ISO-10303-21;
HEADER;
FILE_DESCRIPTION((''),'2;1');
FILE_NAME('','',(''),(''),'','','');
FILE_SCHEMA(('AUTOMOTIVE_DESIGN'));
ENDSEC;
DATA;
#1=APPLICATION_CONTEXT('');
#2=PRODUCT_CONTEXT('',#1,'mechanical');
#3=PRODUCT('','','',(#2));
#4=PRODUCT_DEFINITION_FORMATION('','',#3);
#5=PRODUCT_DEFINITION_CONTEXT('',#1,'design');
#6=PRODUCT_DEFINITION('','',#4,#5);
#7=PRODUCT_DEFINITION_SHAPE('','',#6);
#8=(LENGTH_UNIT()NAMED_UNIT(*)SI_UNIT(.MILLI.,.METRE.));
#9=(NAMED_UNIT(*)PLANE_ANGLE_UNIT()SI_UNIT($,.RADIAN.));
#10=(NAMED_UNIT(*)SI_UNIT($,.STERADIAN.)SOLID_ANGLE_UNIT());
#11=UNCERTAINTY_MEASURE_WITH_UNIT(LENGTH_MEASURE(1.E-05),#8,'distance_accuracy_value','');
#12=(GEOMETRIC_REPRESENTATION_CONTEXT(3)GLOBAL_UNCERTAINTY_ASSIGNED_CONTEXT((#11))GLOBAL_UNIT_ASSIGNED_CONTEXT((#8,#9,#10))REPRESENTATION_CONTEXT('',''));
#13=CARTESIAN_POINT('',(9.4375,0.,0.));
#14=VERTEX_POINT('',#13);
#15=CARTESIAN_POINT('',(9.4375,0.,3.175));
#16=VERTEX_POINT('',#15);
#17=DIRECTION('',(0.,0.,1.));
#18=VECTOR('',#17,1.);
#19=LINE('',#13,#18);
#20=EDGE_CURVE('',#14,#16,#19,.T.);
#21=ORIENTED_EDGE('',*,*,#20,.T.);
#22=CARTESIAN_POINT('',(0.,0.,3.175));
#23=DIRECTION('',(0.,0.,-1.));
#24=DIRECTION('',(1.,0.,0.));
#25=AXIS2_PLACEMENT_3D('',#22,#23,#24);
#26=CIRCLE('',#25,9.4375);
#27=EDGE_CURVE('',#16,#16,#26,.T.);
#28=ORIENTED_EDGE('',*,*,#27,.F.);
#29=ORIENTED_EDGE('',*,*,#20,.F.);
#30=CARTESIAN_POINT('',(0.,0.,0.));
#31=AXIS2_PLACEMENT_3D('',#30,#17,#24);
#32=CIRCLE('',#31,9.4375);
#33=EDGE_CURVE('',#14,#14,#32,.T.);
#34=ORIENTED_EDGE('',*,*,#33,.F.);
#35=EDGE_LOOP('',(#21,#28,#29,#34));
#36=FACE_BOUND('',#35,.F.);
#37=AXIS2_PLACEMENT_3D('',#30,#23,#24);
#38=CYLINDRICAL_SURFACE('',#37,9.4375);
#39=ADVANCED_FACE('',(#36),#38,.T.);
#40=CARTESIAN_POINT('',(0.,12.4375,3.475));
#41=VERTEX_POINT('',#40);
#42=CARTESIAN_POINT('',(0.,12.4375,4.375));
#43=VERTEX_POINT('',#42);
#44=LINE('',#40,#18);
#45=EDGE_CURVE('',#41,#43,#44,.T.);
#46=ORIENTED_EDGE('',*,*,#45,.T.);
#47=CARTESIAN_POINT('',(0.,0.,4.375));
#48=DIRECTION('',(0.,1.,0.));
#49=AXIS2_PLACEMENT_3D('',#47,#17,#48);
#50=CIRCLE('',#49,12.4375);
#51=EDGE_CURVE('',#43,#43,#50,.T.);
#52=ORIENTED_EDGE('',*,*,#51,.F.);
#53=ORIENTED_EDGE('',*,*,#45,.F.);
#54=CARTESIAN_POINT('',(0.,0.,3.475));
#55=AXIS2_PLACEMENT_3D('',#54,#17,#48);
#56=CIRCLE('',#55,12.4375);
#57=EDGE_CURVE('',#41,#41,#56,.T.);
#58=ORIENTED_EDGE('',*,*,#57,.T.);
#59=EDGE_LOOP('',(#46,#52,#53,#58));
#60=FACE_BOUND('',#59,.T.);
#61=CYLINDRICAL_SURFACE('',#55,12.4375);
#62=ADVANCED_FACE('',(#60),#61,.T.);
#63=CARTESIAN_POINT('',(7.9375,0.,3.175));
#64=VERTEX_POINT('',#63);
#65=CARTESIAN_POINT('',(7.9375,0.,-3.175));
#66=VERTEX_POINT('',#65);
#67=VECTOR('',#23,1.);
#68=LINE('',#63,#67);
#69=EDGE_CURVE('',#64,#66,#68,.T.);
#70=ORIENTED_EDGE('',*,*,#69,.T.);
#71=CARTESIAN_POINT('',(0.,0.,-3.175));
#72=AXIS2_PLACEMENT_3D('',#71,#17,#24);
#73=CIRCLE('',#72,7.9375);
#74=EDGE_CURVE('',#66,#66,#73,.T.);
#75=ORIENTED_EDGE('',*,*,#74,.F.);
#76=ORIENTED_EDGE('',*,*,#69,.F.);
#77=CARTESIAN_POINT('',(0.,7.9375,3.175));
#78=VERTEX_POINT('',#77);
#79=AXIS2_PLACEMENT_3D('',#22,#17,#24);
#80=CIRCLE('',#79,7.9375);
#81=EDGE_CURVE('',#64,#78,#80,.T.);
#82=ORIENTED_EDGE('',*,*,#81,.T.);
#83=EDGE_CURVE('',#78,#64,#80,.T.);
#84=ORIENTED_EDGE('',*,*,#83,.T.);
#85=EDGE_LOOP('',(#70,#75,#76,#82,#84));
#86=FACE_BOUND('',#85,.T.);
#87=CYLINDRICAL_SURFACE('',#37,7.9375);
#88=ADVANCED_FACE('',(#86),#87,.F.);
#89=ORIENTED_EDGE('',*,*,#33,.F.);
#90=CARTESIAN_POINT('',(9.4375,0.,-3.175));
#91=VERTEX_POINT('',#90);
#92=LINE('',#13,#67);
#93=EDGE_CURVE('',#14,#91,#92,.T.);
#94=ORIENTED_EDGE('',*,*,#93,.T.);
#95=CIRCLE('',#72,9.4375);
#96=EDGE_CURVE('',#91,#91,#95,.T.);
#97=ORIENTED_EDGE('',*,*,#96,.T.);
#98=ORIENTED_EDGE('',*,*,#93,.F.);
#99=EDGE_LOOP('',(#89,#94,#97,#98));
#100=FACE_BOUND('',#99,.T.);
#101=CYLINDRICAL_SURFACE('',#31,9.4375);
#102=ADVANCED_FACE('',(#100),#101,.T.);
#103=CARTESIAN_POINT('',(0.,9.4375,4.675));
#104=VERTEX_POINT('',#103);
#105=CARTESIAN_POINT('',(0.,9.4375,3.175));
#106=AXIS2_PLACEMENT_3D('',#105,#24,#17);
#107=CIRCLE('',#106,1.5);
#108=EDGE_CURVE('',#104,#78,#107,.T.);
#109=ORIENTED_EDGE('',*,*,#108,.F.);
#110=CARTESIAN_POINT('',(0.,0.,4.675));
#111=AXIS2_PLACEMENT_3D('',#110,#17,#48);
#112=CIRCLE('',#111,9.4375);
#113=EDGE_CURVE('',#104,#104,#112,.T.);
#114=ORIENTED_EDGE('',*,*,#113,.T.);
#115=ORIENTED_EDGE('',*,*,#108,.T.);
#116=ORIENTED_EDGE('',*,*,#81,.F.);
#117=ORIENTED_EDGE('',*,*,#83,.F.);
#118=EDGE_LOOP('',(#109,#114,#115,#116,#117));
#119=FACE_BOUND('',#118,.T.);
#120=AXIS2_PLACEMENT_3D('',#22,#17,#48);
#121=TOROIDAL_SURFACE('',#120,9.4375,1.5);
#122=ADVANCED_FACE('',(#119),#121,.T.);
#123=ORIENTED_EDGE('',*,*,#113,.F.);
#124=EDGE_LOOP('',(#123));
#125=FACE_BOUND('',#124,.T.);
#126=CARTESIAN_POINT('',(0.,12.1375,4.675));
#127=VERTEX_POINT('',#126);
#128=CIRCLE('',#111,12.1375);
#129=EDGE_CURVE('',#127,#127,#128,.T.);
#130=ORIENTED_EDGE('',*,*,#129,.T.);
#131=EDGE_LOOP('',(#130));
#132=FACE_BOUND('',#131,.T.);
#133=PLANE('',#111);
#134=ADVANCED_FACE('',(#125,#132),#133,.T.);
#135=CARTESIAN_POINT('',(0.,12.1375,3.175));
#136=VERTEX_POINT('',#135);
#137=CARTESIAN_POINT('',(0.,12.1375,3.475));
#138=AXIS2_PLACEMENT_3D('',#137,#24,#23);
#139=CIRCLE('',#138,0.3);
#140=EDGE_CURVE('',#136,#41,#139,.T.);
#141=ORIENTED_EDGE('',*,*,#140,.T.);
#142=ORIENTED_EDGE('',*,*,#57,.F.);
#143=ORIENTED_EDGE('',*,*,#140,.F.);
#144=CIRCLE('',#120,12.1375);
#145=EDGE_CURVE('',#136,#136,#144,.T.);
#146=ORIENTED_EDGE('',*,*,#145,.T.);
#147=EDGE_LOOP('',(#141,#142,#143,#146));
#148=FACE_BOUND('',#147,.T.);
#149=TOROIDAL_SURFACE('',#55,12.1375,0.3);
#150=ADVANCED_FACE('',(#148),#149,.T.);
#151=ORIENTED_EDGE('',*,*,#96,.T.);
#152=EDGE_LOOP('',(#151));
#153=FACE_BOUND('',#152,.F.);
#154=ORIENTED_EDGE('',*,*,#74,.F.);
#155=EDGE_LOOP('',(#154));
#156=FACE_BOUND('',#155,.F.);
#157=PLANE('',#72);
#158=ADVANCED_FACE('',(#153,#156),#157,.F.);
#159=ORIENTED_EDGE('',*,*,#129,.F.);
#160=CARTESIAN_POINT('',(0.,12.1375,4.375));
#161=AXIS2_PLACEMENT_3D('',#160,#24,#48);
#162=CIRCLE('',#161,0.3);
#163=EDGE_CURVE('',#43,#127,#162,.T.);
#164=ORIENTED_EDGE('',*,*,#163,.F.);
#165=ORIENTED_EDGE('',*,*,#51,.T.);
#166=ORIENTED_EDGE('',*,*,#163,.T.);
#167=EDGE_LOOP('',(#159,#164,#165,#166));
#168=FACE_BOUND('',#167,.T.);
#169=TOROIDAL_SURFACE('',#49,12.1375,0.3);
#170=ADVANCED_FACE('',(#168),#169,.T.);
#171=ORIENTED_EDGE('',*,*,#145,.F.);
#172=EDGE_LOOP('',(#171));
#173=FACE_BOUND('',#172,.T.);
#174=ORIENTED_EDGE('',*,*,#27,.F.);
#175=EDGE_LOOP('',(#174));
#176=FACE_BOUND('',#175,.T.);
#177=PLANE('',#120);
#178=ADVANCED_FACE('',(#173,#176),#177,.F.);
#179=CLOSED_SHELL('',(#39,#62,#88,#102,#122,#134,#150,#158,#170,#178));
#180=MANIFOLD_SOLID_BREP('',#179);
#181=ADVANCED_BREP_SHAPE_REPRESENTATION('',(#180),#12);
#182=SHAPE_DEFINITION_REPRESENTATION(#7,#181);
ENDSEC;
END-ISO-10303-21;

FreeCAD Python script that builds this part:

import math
import FreeCAD as App
import Part
import Sketcher

V = App.Vector
Q = App.Units.Quantity

doc = App.newDocument("Part")
body = doc.addObject("PartDesign::Body", "Body")

# Sketch on XY plane
sketch1 = body.newObject("Sketcher::SketchObject", "Sketch")
sketch1.AttachmentSupport = (doc.getObject("XY_Plane"), [""])
sketch1.MapMode = "FlatFace"
sketch1.addGeometry(Part.Circle(V(0, 0, 0), V(0, 0, 1), 9), False)
sketch1.addGeometry(Part.Circle(V(0, 0, 0), V(0, 0, 1), 8), False)
sketch1.addConstraint(Sketcher.Constraint("Coincident", 0, 3, -1, 1))
sketch1.addConstraint(Sketcher.Constraint("Coincident", 1, 3, -1, 1))
sketch1.addConstraint(Sketcher.Constraint("Diameter", 0, Q("18.875 mm")))
sketch1.addConstraint(Sketcher.Constraint("Diameter", 1, Q("15.875 mm")))
pad1 = body.newObject("PartDesign::Pad", "Pad")
pad1.Profile = sketch1
pad1.Length = 6.35
pad1.Midplane = True

# Sketch on YZ plane
sketch2 = body.newObject("Sketcher::SketchObject", "Sketch001")
sketch2.AttachmentSupport = (doc.getObject("YZ_Plane"), [""])
sketch2.MapMode = "FlatFace"
sketch2.addGeometry(Part.LineSegment(V(7.94, 3.17, 0), V(12.14, 3.17, 0)), False)
sketch2.addGeometry(Part.ArcOfCircle(Part.Circle(V(12.14, 3.48, 0), V(0, 0, 1), 0.3), math.radians(-90), math.radians(0)), False)
sketch2.addGeometry(Part.LineSegment(V(12.44, 3.48, 0), V(12.44, 4.38, 0)), False)
sketch2.addGeometry(Part.ArcOfCircle(Part.Circle(V(12.14, 4.38, 0), V(0, 0, 1), 0.3), math.radians(0), math.radians(90)), False)
sketch2.addGeometry(Part.LineSegment(V(12.14, 4.67, 0), V(9.44, 4.67, 0)), False)
sketch2.addGeometry(Part.ArcOfCircle(Part.Circle(V(9.44, 3.17, 0), V(0, 0, 1), 1.5), math.radians(90), math.radians(180)), False)
sketch2.addConstraint(Sketcher.Constraint("Tangent", 0, 2, 1, 1))
sketch2.addConstraint(Sketcher.Constraint("Tangent", 1, 2, 2, 1))
sketch2.addConstraint(Sketcher.Constraint("Tangent", 2, 2, 3, 1))
sketch2.addConstraint(Sketcher.Constraint("Tangent", 3, 2, 4, 1))
sketch2.addConstraint(Sketcher.Constraint("Tangent", 4, 2, 5, 1))
sketch2.addConstraint(Sketcher.Constraint("Coincident", 5, 2, 0, 1))
sketch2.addConstraint(Sketcher.Constraint("Horizontal", 0))
sketch2.addConstraint(Sketcher.Constraint("Vertical", 2))
sketch2.addConstraint(Sketcher.Constraint("Horizontal", 4))
sketch2.addConstraint(Sketcher.Constraint("Equal", 1, 3))
sketch2.addConstraint(Sketcher.Constraint("Horizontal", 5, 3, 0, 2))
sketch2.addConstraint(Sketcher.Constraint("Radius", 1, Q("0.3 mm")))
sketch2.addConstraint(Sketcher.Constraint("Radius", 5, Q("1.5 mm")))
sketch2.addConstraint(Sketcher.Constraint("DistanceX", 5, 3, 1, 2, Q("3 mm")))
sketch2.addConstraint(Sketcher.Constraint("DistanceY", -1, 1, 1, 3, Q("3.475 mm")))
sketch2.addConstraint(Sketcher.Constraint("DistanceX", -1, 1, 1, 3, Q("12.1375 mm")))
revolution = body.newObject("PartDesign::Revolution", "Revolution")
revolution.Profile = sketch2
revolution.ReferenceAxis = (sketch2, ["V_Axis"])
revolution.Angle = 360

doc.recompute()
